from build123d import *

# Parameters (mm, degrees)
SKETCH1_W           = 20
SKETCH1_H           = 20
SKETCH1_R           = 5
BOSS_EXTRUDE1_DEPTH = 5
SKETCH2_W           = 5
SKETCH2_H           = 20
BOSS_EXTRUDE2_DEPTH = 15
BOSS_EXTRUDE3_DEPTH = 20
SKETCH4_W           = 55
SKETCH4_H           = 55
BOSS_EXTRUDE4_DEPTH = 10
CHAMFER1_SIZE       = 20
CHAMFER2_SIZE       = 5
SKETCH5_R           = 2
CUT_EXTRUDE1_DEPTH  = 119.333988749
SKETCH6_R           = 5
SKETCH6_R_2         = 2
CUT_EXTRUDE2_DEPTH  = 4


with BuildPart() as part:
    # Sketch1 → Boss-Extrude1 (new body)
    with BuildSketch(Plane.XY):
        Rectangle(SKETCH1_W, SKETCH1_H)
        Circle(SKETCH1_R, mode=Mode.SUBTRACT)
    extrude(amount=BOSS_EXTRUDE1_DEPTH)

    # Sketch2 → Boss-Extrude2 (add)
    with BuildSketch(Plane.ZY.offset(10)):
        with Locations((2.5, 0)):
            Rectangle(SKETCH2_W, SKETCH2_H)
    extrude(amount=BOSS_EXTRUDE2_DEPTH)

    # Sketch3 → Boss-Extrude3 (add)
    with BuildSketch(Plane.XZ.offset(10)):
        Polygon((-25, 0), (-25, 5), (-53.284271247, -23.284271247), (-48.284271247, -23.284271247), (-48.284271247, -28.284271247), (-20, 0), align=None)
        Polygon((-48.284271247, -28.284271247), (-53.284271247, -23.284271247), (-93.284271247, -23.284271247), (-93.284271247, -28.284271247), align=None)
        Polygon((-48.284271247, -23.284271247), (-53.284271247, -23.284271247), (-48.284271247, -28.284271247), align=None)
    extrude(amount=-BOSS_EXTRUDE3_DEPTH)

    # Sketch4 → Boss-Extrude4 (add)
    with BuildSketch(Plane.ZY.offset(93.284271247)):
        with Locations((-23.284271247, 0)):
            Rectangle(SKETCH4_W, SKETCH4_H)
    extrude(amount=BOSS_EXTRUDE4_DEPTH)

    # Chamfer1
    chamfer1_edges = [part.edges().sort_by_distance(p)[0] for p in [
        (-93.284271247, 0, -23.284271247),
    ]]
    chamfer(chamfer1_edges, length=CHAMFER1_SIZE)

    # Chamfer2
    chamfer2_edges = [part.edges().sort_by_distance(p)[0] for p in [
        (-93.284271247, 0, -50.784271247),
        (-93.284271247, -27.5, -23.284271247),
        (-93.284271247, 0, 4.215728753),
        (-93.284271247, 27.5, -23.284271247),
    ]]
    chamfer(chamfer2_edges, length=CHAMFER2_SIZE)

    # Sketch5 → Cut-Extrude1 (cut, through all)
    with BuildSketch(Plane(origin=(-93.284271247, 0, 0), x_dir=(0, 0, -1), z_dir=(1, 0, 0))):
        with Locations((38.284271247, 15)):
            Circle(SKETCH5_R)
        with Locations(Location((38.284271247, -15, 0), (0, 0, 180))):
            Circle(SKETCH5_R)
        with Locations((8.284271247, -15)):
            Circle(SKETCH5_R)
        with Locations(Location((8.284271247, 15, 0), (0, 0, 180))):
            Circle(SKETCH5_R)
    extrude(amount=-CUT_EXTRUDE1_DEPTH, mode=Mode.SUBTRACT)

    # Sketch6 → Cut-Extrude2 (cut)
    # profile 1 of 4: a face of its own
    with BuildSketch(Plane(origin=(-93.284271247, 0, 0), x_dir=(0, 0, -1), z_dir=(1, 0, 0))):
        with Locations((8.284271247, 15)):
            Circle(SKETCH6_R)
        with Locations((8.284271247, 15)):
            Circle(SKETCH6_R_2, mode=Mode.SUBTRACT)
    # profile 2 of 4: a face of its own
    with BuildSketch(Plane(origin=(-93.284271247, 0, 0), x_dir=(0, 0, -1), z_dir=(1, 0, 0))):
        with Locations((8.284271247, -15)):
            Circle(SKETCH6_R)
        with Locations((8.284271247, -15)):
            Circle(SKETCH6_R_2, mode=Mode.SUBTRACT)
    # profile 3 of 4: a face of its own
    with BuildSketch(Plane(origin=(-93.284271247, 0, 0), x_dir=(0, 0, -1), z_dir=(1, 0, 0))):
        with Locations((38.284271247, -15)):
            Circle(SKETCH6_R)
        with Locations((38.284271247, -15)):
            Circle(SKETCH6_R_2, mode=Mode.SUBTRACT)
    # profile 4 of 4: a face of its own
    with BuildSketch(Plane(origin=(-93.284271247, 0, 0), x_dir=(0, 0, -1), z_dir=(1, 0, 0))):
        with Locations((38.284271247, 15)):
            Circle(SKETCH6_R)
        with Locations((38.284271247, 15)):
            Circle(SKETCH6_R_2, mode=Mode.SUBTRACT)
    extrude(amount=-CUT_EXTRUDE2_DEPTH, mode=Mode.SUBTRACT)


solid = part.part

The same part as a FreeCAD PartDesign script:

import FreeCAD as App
import Part
import Sketcher
from FreeCAD import Vector
Q = App.Units.Quantity


def edges_at(feature, points):
    """Names of the edges that pass closest to the given points."""
    edges = feature.Shape.Edges
    near = lambda p: min(range(len(edges)), key=lambda i: edges[i].distToShape(Part.Vertex(*p))[0])
    return sorted({f"Edge{near(p) + 1}" for p in points})

doc = App.newDocument("Part")
body = doc.addObject("PartDesign::Body", "Body")

# Sketch on XY plane
sketch1 = body.newObject("Sketcher::SketchObject", "Sketch")
sketch1.AttachmentSupport = (doc.getObject("XY_Plane"), [""])
sketch1.MapMode = "FlatFace"
sketch1.addGeometry([
    Part.LineSegment(Vector(-10, 10, 0), Vector(-10, -10, 0)),  # 0
    Part.LineSegment(Vector(-10, -10, 0), Vector(10, -10, 0)),  # 1
    Part.LineSegment(Vector(10, -10, 0), Vector(10, 10, 0)),  # 2
    Part.LineSegment(Vector(10, 10, 0), Vector(-10, 10, 0)),  # 3
    Part.Circle(Vector(0, 0, 0), Vector(0, 0, 1), 5),  # 4
], False)
sketch1.addConstraint([
    Sketcher.Constraint("Coincident", 0, 2, 1, 1),
    Sketcher.Constraint("Coincident", 1, 2, 2, 1),
    Sketcher.Constraint("Coincident", 2, 2, 3, 1),
    Sketcher.Constraint("Coincident", 3, 2, 0, 1),
    Sketcher.Constraint("Vertical", 0),
    Sketcher.Constraint("Horizontal", 1),
    Sketcher.Constraint("Vertical", 2),
    Sketcher.Constraint("Horizontal", 3),
    Sketcher.Constraint("Coincident", 4, 3, -1, 1),
    Sketcher.Constraint("Symmetric", 0, 2, 2, 2, -1, 1),
    Sketcher.Constraint("Equal", 3, 0),
    Sketcher.Constraint("Diameter", 4, Q("10 mm")),
    Sketcher.Constraint("DistanceX", 1, 1, 1, 2, Q("20 mm")),
])
pad1 = body.newObject("PartDesign::Pad", "Pad")
pad1.Profile = sketch1
pad1.Length = 5

# Sketch on YZ plane
sketch2 = body.newObject("Sketcher::SketchObject", "Sketch001")
sketch2.AttachmentSupport = (doc.getObject("YZ_Plane"), [""])
sketch2.MapMode = "FlatFace"
sketch2.AttachmentOffset = App.Placement(Vector(0, 0, -10), App.Rotation())
sketch2.addGeometry([
    Part.LineSegment(Vector(10, 0, 0), Vector(-10, 0, 0)),
    Part.LineSegment(Vector(-10, 0, 0), Vector(-10, 5, 0)),
    Part.LineSegment(Vector(-10, 5, 0), Vector(10, 5, 0)),
    Part.LineSegment(Vector(10, 5, 0), Vector(10, 0, 0)),
], False)
sketch2.addConstraint([
    Sketcher.Constraint("Coincident", 0, 2, 1, 1),
    Sketcher.Constraint("Coincident", 1, 2, 2, 1),
    Sketcher.Constraint("Coincident", 2, 2, 3, 1),
    Sketcher.Constraint("Coincident", 3, 2, 0, 1),
    Sketcher.Constraint("Horizontal", 0),
    Sketcher.Constraint("Vertical", 1),
    Sketcher.Constraint("Horizontal", 2),
    Sketcher.Constraint("Vertical", 3),
    Sketcher.Constraint("Symmetric", 0, 2, 3, 2, -1, 1),
    Sketcher.Constraint("DistanceX", 0, 2, 0, 1, Q("20 mm")),
    Sketcher.Constraint("DistanceY", 1, 1, 1, 2, Q("5 mm")),
])
pad2 = body.newObject("PartDesign::Pad", "Pad001")
pad2.Profile = sketch2
pad2.Length = 15
pad2.Reversed = True

# Sketch on XZ plane
sketch3 = body.newObject("Sketcher::SketchObject", "Sketch002")
sketch3.AttachmentSupport = (doc.getObject("XZ_Plane"), [""])
sketch3.MapMode = "FlatFace"
sketch3.AttachmentOffset = App.Placement(Vector(0, 0, 10), App.Rotation())
sketch3.addGeometry([
    Part.LineSegment(Vector(-25, 0, 0), Vector(-25, 5, 0)),  # 0
    Part.LineSegment(Vector(-25, 5, 0), Vector(-53, -23, 0)),  # 1
    Part.LineSegment(Vector(-53, -23, 0), Vector(-93, -23, 0)),  # 2
    Part.LineSegment(Vector(-93, -23, 0), Vector(-93, -28, 0)),  # 3
    Part.LineSegment(Vector(-93, -28, 0), Vector(-48, -28, 0)),  # 4
    Part.LineSegment(Vector(-48, -28, 0), Vector(-20, 0, 0)),  # 5
    Part.LineSegment(Vector(-20, 0, 0), Vector(-25, 0, 0)),  # 6
], False)
sketch3.addConstraint([
    Sketcher.Constraint("Coincident", 0, 2, 1, 1),
    Sketcher.Constraint("Coincident", 1, 2, 2, 1),
    Sketcher.Constraint("Coincident", 2, 2, 3, 1),
    Sketcher.Constraint("Coincident", 3, 2, 4, 1),
    Sketcher.Constraint("Coincident", 4, 2, 5, 1),
    Sketcher.Constraint("Coincident", 5, 2, 6, 1),
    Sketcher.Constraint("Coincident", 6, 2, 0, 1),
    Sketcher.Constraint("Vertical", 0),
    Sketcher.Constraint("Horizontal", 2),
    Sketcher.Constraint("Vertical", 3),
    Sketcher.Constraint("Horizontal", 4),
    Sketcher.Constraint("Horizontal", 6),
    Sketcher.Constraint("PointOnObject", 5, 2, -1),
    Sketcher.Constraint("Parallel", 1, 5),
    Sketcher.Constraint("Equal", 6, 0),
    Sketcher.Constraint("Equal", 0, 3),
    Sketcher.Constraint("DistanceX", 2, 2, 2, 1, Q("40 mm")),
    Sketcher.Constraint("DistanceX", 4, 1, 4, 2, Q("45 mm")),
    Sketcher.Constraint("Angle", 1, Q("-135 deg")),
    Sketcher.Constraint("Distance", 1, Q("40 mm")),
    Sketcher.Constraint("DistanceX", 0, 2, -1, 1, Q("25 mm")),
])
pad3 = body.newObject("PartDesign::Pad", "Pad002")
pad3.Profile = sketch3
pad3.Length = 20
pad3.Reversed = True

# Sketch on YZ plane
sketch4 = body.newObject("Sketcher::SketchObject", "Sketch003")
sketch4.AttachmentSupport = (doc.getObject("YZ_Plane"), [""])
sketch4.MapMode = "FlatFace"
sketch4.AttachmentOffset = App.Placement(Vector(0, 0, -93.284271), App.Rotation())
sketch4.addGeometry([
    Part.LineSegment(Vector(28, -51, 0), Vector(-28, -51, 0)),
    Part.LineSegment(Vector(-28, -51, 0), Vector(-28, 4, 0)),
    Part.LineSegment(Vector(-28, 4, 0), Vector(28, 4, 0)),
    Part.LineSegment(Vector(28, 4, 0), Vector(28, -51, 0)),
], False)
sketch4.addConstraint([
    Sketcher.Constraint("Coincident", 0, 2, 1, 1),
    Sketcher.Constraint("Coincident", 1, 2, 2, 1),
    Sketcher.Constraint("Coincident", 2, 2, 3, 1),
    Sketcher.Constraint("Coincident", 3, 2, 0, 1),
    Sketcher.Constraint("Horizontal", 0),
    Sketcher.Constraint("Vertical", 1),
    Sketcher.Constraint("Horizontal", 2),
    Sketcher.Constraint("Vertical", 3),
    Sketcher.Constraint("Equal", 2, 1),
    Sketcher.Constraint("DistanceX", 0, 2, 0, 1, Q("55 mm")),
    Sketcher.Constraint("DistanceX", 0, 2, -1, 1, Q("27.5 mm")),
    Sketcher.Constraint("DistanceY", 0, 2, -1, 1, Q("50.784271 mm")),
])
pad4 = body.newObject("PartDesign::Pad", "Pad003")
pad4.Profile = sketch4
pad4.Length = 10
pad4.Reversed = True
doc.recompute()

chamfer = body.newObject("PartDesign::Chamfer", "Chamfer")
chamfer.Base = (pad4, edges_at(pad4, [(-93.284, 0, -23.284)]))
chamfer.Size = 20
doc.recompute()

chamfer2 = body.newObject("PartDesign::Chamfer", "Chamfer001")
chamfer2.Base = (chamfer, edges_at(chamfer, [
    (-93.284, 0, -50.784),
    (-93.284, -27.5, -23.284),
    (-93.284, 0, 4.216),
    (-93.284, 27.5, -23.284),
]))
chamfer2.Size = 5

# Sketch on YZ plane
sketch5 = body.newObject("Sketcher::SketchObject", "Sketch004")
sketch5.AttachmentSupport = (doc.getObject("YZ_Plane"), [""])
sketch5.MapMode = "FlatFace"
sketch5.AttachmentOffset = App.Placement(Vector(0, 0, -93.284271), App.Rotation())
sketch5.addGeometry([
    Part.Circle(Vector(15, -38.3, 0), Vector(0, 0, 1), 2),
    Part.Circle(Vector(-15, -38.3, 0), Vector(0, 0, 1), 2),
    Part.Circle(Vector(-15, -8.3, 0), Vector(0, 0, 1), 2),
    Part.Circle(Vector(15, -8.3, 0), Vector(0, 0, 1), 2),
], False)
sketch5.addConstraint([
    Sketcher.Constraint("Equal", 0, 1),
    Sketcher.Constraint("Equal", 1, 2),
    Sketcher.Constraint("Equal", 2, 3),
    Sketcher.Constraint("Symmetric", 0, 3, 1, 3, -2),
    Sketcher.Constraint("Symmetric", 2, 3, 3, 3, -2),
    Sketcher.Constraint("Vertical", 1, 3, 2, 3),
    Sketcher.Constraint("Diameter", 0, Q("4 mm")),
    Sketcher.Constraint("DistanceX", -1, 1, 0, 3, Q("15 mm")),
    Sketcher.Constraint("DistanceY", 1, 3, 2, 3, Q("30 mm")),
    Sketcher.Constraint("DistanceY", 0, 3, -1, 1, Q("38.284271 mm")),
])
pocket1 = body.newObject("PartDesign::Pocket", "Pocket")
pocket1.Profile = sketch5
pocket1.Type = "ThroughAll"

# Sketch on YZ plane
sketch6 = body.newObject("Sketcher::SketchObject", "Sketch005")
sketch6.AttachmentSupport = (doc.getObject("YZ_Plane"), [""])
sketch6.MapMode = "FlatFace"
sketch6.AttachmentOffset = App.Placement(Vector(0, 0, -93.284271), App.Rotation())
sketch6.addGeometry([
    Part.Circle(Vector(15, -8.3, 0), Vector(0, 0, 1), 5),  # 0
    Part.Circle(Vector(15, -8.3, 0), Vector(0, 0, 1), 2),  # 1
    Part.Circle(Vector(-15, -8.3, 0), Vector(0, 0, 1), 5),  # 2
    Part.Circle(Vector(-15, -8.3, 0), Vector(0, 0, 1), 2),  # 3
    Part.Circle(Vector(-15, -38.3, 0), Vector(0, 0, 1), 5),  # 4
    Part.Circle(Vector(-15, -38.3, 0), Vector(0, 0, 1), 2),  # 5
    Part.Circle(Vector(15, -38.3, 0), Vector(0, 0, 1), 5),  # 6
    Part.Circle(Vector(15, -38.3, 0), Vector(0, 0, 1), 2),  # 7
], False)
sketch6.addConstraint([
    Sketcher.Constraint("Coincident", 1, 3, 0, 3),
    Sketcher.Constraint("Coincident", 3, 3, 2, 3),
    Sketcher.Constraint("Coincident", 5, 3, 4, 3),
    Sketcher.Constraint("Coincident", 7, 3, 6, 3),
    Sketcher.Constraint("Equal", 0, 2),
    Sketcher.Constraint("Equal", 1, 3),
    Sketcher.Constraint("Equal", 2, 4),
    Sketcher.Constraint("Equal", 3, 5),
    Sketcher.Constraint("Equal", 4, 6),
    Sketcher.Constraint("Equal", 5, 7),
    Sketcher.Constraint("Symmetric", 0, 3, 2, 3, -2),
    Sketcher.Constraint("Symmetric", 4, 3, 6, 3, -2),
    Sketcher.Constraint("Vertical", 3, 3, 4, 3),
    Sketcher.Constraint("Diameter", 0, Q("10 mm")),
    Sketcher.Constraint("Diameter", 1, Q("4 mm")),
    Sketcher.Constraint("DistanceX", -1, 1, 0, 3, Q("15 mm")),
    Sketcher.Constraint("DistanceY", 4, 3, 2, 3, Q("30 mm")),
    Sketcher.Constraint("DistanceY", 0, 3, -1, 1, Q("8.284271 mm")),
])
pocket2 = body.newObject("PartDesign::Pocket", "Pocket001")
pocket2.Profile = sketch6
pocket2.Length = 4

doc.recompute()
